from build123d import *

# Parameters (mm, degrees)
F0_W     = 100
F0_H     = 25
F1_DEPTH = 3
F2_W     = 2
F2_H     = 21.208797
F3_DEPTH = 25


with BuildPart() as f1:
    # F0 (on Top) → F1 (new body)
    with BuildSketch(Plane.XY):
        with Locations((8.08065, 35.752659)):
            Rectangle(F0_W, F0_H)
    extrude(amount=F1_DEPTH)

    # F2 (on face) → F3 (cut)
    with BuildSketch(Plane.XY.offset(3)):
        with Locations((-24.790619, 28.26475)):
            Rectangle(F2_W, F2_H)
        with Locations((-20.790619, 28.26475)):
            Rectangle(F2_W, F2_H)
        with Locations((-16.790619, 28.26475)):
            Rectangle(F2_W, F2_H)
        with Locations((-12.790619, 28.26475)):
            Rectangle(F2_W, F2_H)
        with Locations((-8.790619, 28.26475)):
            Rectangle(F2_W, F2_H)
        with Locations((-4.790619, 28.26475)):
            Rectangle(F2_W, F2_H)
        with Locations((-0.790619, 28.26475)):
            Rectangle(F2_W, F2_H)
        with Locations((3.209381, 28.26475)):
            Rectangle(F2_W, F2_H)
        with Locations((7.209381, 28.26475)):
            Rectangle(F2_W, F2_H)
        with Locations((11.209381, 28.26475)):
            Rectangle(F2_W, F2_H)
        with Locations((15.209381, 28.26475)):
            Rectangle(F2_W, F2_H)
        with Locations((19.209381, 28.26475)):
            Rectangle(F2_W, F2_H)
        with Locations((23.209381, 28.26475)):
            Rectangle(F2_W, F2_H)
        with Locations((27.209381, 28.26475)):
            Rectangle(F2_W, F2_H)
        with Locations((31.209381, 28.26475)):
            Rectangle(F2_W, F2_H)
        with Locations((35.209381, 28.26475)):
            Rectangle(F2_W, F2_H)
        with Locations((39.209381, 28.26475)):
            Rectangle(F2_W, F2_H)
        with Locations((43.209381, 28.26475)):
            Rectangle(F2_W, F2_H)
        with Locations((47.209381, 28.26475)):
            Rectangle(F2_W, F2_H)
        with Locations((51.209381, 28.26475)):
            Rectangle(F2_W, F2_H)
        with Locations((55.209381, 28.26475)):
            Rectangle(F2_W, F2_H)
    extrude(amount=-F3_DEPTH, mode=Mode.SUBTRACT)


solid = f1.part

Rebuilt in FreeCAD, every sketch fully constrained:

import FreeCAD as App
import Part
import Sketcher
from FreeCAD import Vector
Q = App.Units.Quantity


def add_polygon(sketch, points):
    """Adds a closed chain of lines whose ends are joined by coincident constraints."""
    first, n = sketch.GeometryCount, len(points)
    for a, b in zip(points, points[1:] + points[:1]):
        sketch.addGeometry(Part.LineSegment(App.Vector(*a, 0), App.Vector(*b, 0)), False)
    for i in range(n):
        sketch.addConstraint(Sketcher.Constraint("Coincident", first + i, 2, first + (i + 1) % n, 1))

doc = App.newDocument("Part")
params = doc.addObject("Spreadsheet::Sheet", "Params")
for row, (alias, value) in enumerate([
    ("sketch1_width", "100 mm"),
    ("sketch1_height", "25 mm"),
    ("pad1_length", "3 mm"),
    ("sketch2_width", "2 mm"),
    ("pocket1_length", "25 mm"),
], start=1):
    params.set(f"A{row}", alias)
    params.set(f"B{row}", "=" + value)
    params.setAlias(f"B{row}", alias)

body = doc.addObject("PartDesign::Body", "Body")

sketch1 = doc.addObject("Sketcher::SketchObject", "Sketch")
body.addObject(sketch1)
sketch1.AttachmentSupport = (doc.XY_Plane, [""])
sketch1.MapMode = "FlatFace"
add_polygon(sketch1, [(-42, 48), (-42, 23), (58, 23), (58, 48)])
sketch1.addConstraint([
    Sketcher.Constraint("Vertical", 0),
    Sketcher.Constraint("Horizontal", 1),
    Sketcher.Constraint("Vertical", 2),
    Sketcher.Constraint("Horizontal", 3),
    Sketcher.Constraint("DistanceX", 1, 1, 1, 2, Q("100 mm")),
    Sketcher.Constraint("DistanceY", 0, 2, 0, 1, Q("25 mm")),
    Sketcher.Constraint("DistanceX", 0, 2, -1, 1, Q("41.91935 mm")),
    Sketcher.Constraint("DistanceY", -1, 1, 0, 2, Q("23.252659 mm")),
])
sketch1.setExpression("Constraints[8]", "Params.sketch1_width")
sketch1.setExpression("Constraints[9]", "Params.sketch1_height")
pad1 = doc.addObject("PartDesign::Pad", "Pad")
body.addObject(pad1)
pad1.Profile = sketch1
pad1.setExpression("Length", "Params.pad1_length")

sketch2 = doc.addObject("Sketcher::SketchObject", "Sketch001")
body.addObject(sketch2)
sketch2.AttachmentSupport = (doc.XY_Plane, [""])
sketch2.MapMode = "FlatFace"
sketch2.AttachmentOffset = App.Placement(Vector(0, 0, 3), App.Rotation())
add_polygon(sketch2, [(-25.8, 38.9), (-25.8, 17.7), (-23.8, 17.7), (-23.8, 38.9)])
add_polygon(sketch2, [(-21.8, 38.9), (-21.8, 17.7), (-19.8, 17.7), (-19.8, 38.9)])
add_polygon(sketch2, [(-17.8, 38.9), (-17.8, 17.7), (-15.8, 17.7), (-15.8, 38.9)])
add_polygon(sketch2, [(-13.8, 38.9), (-13.8, 17.7), (-11.8, 17.7), (-11.8, 38.9)])
add_polygon(sketch2, [(-9.8, 38.9), (-9.8, 17.7), (-7.8, 17.7), (-7.8, 38.9)])
add_polygon(sketch2, [(-5.8, 38.9), (-5.8, 17.7), (-3.8, 17.7), (-3.8, 38.9)])
add_polygon(sketch2, [(-1.8, 38.9), (-1.8, 17.7), (0.2, 17.7), (0.2, 38.9)])
add_polygon(sketch2, [(2.2, 38.9), (2.2, 17.7), (4.2, 17.7), (4.2, 38.9)])
add_polygon(sketch2, [(6.2, 38.9), (6.2, 17.7), (8.2, 17.7), (8.2, 38.9)])
add_polygon(sketch2, [(10.2, 38.9), (10.2, 17.7), (12.2, 17.7), (12.2, 38.9)])
add_polygon(sketch2, [(14.2, 38.9), (14.2, 17.7), (16.2, 17.7), (16.2, 38.9)])
add_polygon(sketch2, [(18.2, 38.9), (18.2, 17.7), (20.2, 17.7), (20.2, 38.9)])
add_polygon(sketch2, [(22.2, 38.9), (22.2, 17.7), (24.2, 17.7), (24.2, 38.9)])
add_polygon(sketch2, [(26.2, 38.9), (26.2, 17.7), (28.2, 17.7), (28.2, 38.9)])
add_polygon(sketch2, [(30.2, 38.9), (30.2, 17.7), (32.2, 17.7), (32.2, 38.9)])
add_polygon(sketch2, [(34.2, 38.9), (34.2, 17.7), (36.2, 17.7), (36.2, 38.9)])
add_polygon(sketch2, [(38.2, 38.9), (38.2, 17.7), (40.2, 17.7), (40.2, 38.9)])
add_polygon(sketch2, [(42.2, 38.9), (42.2, 17.7), (44.2, 17.7), (44.2, 38.9)])
add_polygon(sketch2, [(46.2, 38.9), (46.2, 17.7), (48.2, 17.7), (48.2, 38.9)])
add_polygon(sketch2, [(50.2, 38.9), (50.2, 17.7), (52.2, 17.7), (52.2, 38.9)])
add_polygon(sketch2, [(54.2, 38.9), (54.2, 17.7), (56.2, 17.7), (56.2, 38.9)])
sketch2.addConstraint([
    Sketcher.Constraint("Vertical", 0),
    Sketcher.Constraint("Horizontal", 1),
    Sketcher.Constraint("Vertical", 2),
    Sketcher.Constraint("Horizontal", 3),
    Sketcher.Constraint("Vertical", 4),
    Sketcher.Constraint("Horizontal", 5),
    Sketcher.Constraint("Vertical", 6),
    Sketcher.Constraint("Horizontal", 7),
    Sketcher.Constraint("Vertical", 8),
    Sketcher.Constraint("Horizontal", 9),
    Sketcher.Constraint("Vertical", 10),
    Sketcher.Constraint("Horizontal", 11),
    Sketcher.Constraint("Vertical", 12),
    Sketcher.Constraint("Horizontal", 13),
    Sketcher.Constraint("Vertical", 14),
    Sketcher.Constraint("Horizontal", 15),
    Sketcher.Constraint("Vertical", 16),
    Sketcher.Constraint("Horizontal", 17),
    Sketcher.Constraint("Vertical", 18),
    Sketcher.Constraint("Horizontal", 19),
    Sketcher.Constraint("Vertical", 20),
    Sketcher.Constraint("Horizontal", 21),
    Sketcher.Constraint("Vertical", 22),
    Sketcher.Constraint("Horizontal", 23),
    Sketcher.Constraint("Vertical", 24),
    Sketcher.Constraint("Horizontal", 25),
    Sketcher.Constraint("Vertical", 26),
    Sketcher.Constraint("Horizontal", 27),
    Sketcher.Constraint("Vertical", 28),
    Sketcher.Constraint("Horizontal", 29),
    Sketcher.Constraint("Vertical", 30),
    Sketcher.Constraint("Horizontal", 31),
    Sketcher.Constraint("Vertical", 32),
    Sketcher.Constraint("Horizontal", 33),
    Sketcher.Constraint("Vertical", 34),
    Sketcher.Constraint("Horizontal", 35),
    Sketcher.Constraint("Vertical", 36),
    Sketcher.Constraint("Horizontal", 37),
    Sketcher.Constraint("Vertical", 38),
    Sketcher.Constraint("Horizontal", 39),
    Sketcher.Constraint("Vertical", 40),
    Sketcher.Constraint("Horizontal", 41),
    Sketcher.Constraint("Vertical", 42),
    Sketcher.Constraint("Horizontal", 43),
    Sketcher.Constraint("Vertical", 44),
    Sketcher.Constraint("Horizontal", 45),
    Sketcher.Constraint("Vertical", 46),
    Sketcher.Constraint("Horizontal", 47),
    Sketcher.Constraint("Vertical", 48),
    Sketcher.Constraint("Horizontal", 49),
    Sketcher.Constraint("Vertical", 50),
    Sketcher.Constraint("Horizontal", 51),
    Sketcher.Constraint("Vertical", 52),
    Sketcher.Constraint("Horizontal", 53),
    Sketcher.Constraint("Vertical", 54),
    Sketcher.Constraint("Horizontal", 55),
    Sketcher.Constraint("Vertical", 56),
    Sketcher.Constraint("Horizontal", 57),
    Sketcher.Constraint("Vertical", 58),
    Sketcher.Constraint("Horizontal", 59),
    Sketcher.Constraint("Vertical", 60),
    Sketcher.Constraint("Horizontal", 61),
    Sketcher.Constraint("Vertical", 62),
    Sketcher.Constraint("Horizontal", 63),
    Sketcher.Constraint("Vertical", 64),
    Sketcher.Constraint("Horizontal", 65),
    Sketcher.Constraint("Vertical", 66),
    Sketcher.Constraint("Horizontal", 67),
    Sketcher.Constraint("Vertical", 68),
    Sketcher.Constraint("Horizontal", 69),
    Sketcher.Constraint("Vertical", 70),
    Sketcher.Constraint("Horizontal", 71),
    Sketcher.Constraint("Vertical", 72),
    Sketcher.Constraint("Horizontal", 73),
    Sketcher.Constraint("Vertical", 74),
    Sketcher.Constraint("Horizontal", 75),
    Sketcher.Constraint("Vertical", 76),
    Sketcher.Constraint("Horizontal", 77),
    Sketcher.Constraint("Vertical", 78),
    Sketcher.Constraint("Horizontal", 79),
    Sketcher.Constraint("Vertical", 80),
    Sketcher.Constraint("Horizontal", 81),
    Sketcher.Constraint("Vertical", 82),
    Sketcher.Constraint("Horizontal", 83),
    Sketcher.Constraint("Horizontal", 1, 2, 4, 2),
    Sketcher.Constraint("Horizontal", 3, 2, 6, 2),
    Sketcher.Constraint("Horizontal", 5, 2, 8, 2),
    Sketcher.Constraint("Horizontal", 7, 2, 10, 2),
    Sketcher.Constraint("Horizontal", 9, 2, 12, 2),
    Sketcher.Constraint("Horizontal", 11, 2, 14, 2),
    Sketcher.Constraint("Horizontal", 13, 2, 16, 2),
    Sketcher.Constraint("Horizontal", 15, 2, 18, 2),
    Sketcher.Constraint("Horizontal", 17, 2, 20, 2),
    Sketcher.Constraint("Horizontal", 19, 2, 22, 2),
    Sketcher.Constraint("Horizontal", 21, 2, 24, 2),
    Sketcher.Constraint("Horizontal", 23, 2, 26, 2),
    Sketcher.Constraint("Horizontal", 25, 2, 28, 2),
    Sketcher.Constraint("Horizontal", 27, 2, 30, 2),
    Sketcher.Constraint("Horizontal", 29, 2, 32, 2),
    Sketcher.Constraint("Horizontal", 31, 2, 34, 2),
    Sketcher.Constraint("Horizontal", 33, 2, 36, 2),
    Sketcher.Constraint("Horizontal", 35, 2, 38, 2),
    Sketcher.Constraint("Horizontal", 37, 2, 40, 2),
    Sketcher.Constraint("Horizontal", 39, 2, 42, 2),
    Sketcher.Constraint("Horizontal", 41, 2, 44, 2),
    Sketcher.Constraint("Horizontal", 43, 2, 46, 2),
    Sketcher.Constraint("Horizontal", 45, 2, 48, 2),
    Sketcher.Constraint("Horizontal", 47, 2, 50, 2),
    Sketcher.Constraint("Horizontal", 49, 2, 52, 2),
    Sketcher.Constraint("Horizontal", 51, 2, 54, 2),
    Sketcher.Constraint("Horizontal", 53, 2, 56, 2),
    Sketcher.Constraint("Horizontal", 55, 2, 58, 2),
    Sketcher.Constraint("Horizontal", 57, 2, 60, 2),
    Sketcher.Constraint("Horizontal", 59, 2, 62, 2),
    Sketcher.Constraint("Horizontal", 61, 2, 64, 2),
    Sketcher.Constraint("Horizontal", 63, 2, 66, 2),
    Sketcher.Constraint("Horizontal", 65, 2, 68, 2),
    Sketcher.Constraint("Horizontal", 67, 2, 70, 2),
    Sketcher.Constraint("Horizontal", 69, 2, 72, 2),
    Sketcher.Constraint("Horizontal", 71, 2, 74, 2),
    Sketcher.Constraint("Horizontal", 73, 2, 76, 2),
    Sketcher.Constraint("Horizontal", 75, 2, 78, 2),
    Sketcher.Constraint("Horizontal", 77, 2, 80, 2),
    Sketcher.Constraint("Horizontal", 79, 2, 82, 2),
    Sketcher.Constraint("Equal", 3, 5),
    Sketcher.Constraint("Equal", 7, 9),
    Sketcher.Constraint("Equal", 11, 13),
    Sketcher.Constraint("Equal", 15, 17),
    Sketcher.Constraint("Equal", 19, 21),
    Sketcher.Constraint("Equal", 23, 25),
    Sketcher.Constraint("Equal", 27, 29),
    Sketcher.Constraint("Equal", 31, 33),
    Sketcher.Constraint("Equal", 35, 37),
    Sketcher.Constraint("Equal", 39, 41),
    Sketcher.Constraint("Equal", 43, 45),
    Sketcher.Constraint("Equal", 47, 49),
    Sketcher.Constraint("Equal", 51, 53),
    Sketcher.Constraint("Equal", 55, 57),
    Sketcher.Constraint("Equal", 59, 61),
    Sketcher.Constraint("Equal", 63, 65),
    Sketcher.Constraint("Equal", 67, 69),
    Sketcher.Constraint("Equal", 71, 73),
    Sketcher.Constraint("Equal", 75, 77),
    Sketcher.Constraint("Equal", 79, 81),
    Sketcher.Constraint("DistanceX", 1, 1, 1, 2, Q("2 mm")),
    Sketcher.Constraint("DistanceY", 0, 2, 0, 1, Q("21.208797 mm")),
    Sketcher.Constraint("DistanceX", 0, 2, -1, 1, Q("25.790619 mm")),
    Sketcher.Constraint("DistanceY", -1, 1, 0, 2, Q("17.660352 mm")),
    Sketcher.Constraint("DistanceX", 4, 2, -1, 1, Q("21.790619 mm")),
    Sketcher.Constraint("DistanceX", 8, 2, -1, 1, Q("17.790619 mm")),
    Sketcher.Constraint("DistanceX", 12, 2, -1, 1, Q("13.790619 mm")),
    Sketcher.Constraint("DistanceX", 16, 2, -1, 1, Q("9.790619 mm")),
    Sketcher.Constraint("DistanceX", 20, 2, -1, 1, Q("5.790619 mm")),
    Sketcher.Constraint("DistanceX", 24, 2, -1, 1, Q("1.790619 mm")),
    Sketcher.Constraint("DistanceX", -1, 1, 28, 2, Q("2.209381 mm")),
    Sketcher.Constraint("DistanceX", -1, 1, 32, 2, Q("6.209381 mm")),
    Sketcher.Constraint("DistanceX", -1, 1, 36, 2, Q("10.209381 mm")),
    Sketcher.Constraint("DistanceX", -1, 1, 40, 2, Q("14.209381 mm")),
    Sketcher.Constraint("DistanceX", -1, 1, 44, 2, Q("18.209381 mm")),
    Sketcher.Constraint("DistanceX", -1, 1, 48, 2, Q("22.209381 mm")),
    Sketcher.Constraint("DistanceX", -1, 1, 52, 2, Q("26.209381 mm")),
    Sketcher.Constraint("DistanceX", -1, 1, 56, 2, Q("30.209381 mm")),
    Sketcher.Constraint("DistanceX", -1, 1, 60, 2, Q("34.209381 mm")),
    Sketcher.Constraint("DistanceX", -1, 1, 64, 2, Q("38.209381 mm")),
    Sketcher.Constraint("DistanceX", -1, 1, 68, 2, Q("42.209381 mm")),
    Sketcher.Constraint("DistanceX", -1, 1, 72, 2, Q("46.209381 mm")),
    Sketcher.Constraint("DistanceX", -1, 1, 76, 2, Q("50.209381 mm")),
    Sketcher.Constraint("DistanceX", -1, 1, 80, 2, Q("54.209381 mm")),
])
sketch2.setExpression("Constraints[228]", "Params.sketch2_width")
pocket1 = doc.addObject("PartDesign::Pocket", "Pocket")
body.addObject(pocket1)
pocket1.Profile = sketch2
pocket1.setExpression("Length", "Params.pocket1_length")

doc.recompute()
